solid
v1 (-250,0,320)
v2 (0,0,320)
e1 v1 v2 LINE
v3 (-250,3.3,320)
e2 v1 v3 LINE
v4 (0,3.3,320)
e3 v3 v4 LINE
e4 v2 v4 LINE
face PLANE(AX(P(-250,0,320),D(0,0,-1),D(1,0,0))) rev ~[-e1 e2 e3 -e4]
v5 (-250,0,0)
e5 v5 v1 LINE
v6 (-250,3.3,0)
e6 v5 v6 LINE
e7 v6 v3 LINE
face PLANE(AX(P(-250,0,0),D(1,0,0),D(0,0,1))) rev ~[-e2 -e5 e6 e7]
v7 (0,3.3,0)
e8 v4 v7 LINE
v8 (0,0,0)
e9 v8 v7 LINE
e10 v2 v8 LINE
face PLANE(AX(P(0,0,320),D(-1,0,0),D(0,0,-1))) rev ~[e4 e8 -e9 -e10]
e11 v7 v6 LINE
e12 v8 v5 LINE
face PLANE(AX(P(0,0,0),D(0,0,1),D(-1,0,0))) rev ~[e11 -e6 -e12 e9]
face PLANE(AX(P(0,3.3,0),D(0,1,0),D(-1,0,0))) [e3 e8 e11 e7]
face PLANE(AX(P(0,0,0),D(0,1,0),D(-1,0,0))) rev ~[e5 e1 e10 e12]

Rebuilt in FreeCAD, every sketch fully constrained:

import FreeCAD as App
import Part
import Sketcher
Q = App.Units.Quantity

doc = App.newDocument("Part")
params = doc.addObject("Spreadsheet::Sheet", "Params")
for row, (alias, value) in enumerate([
    ("sketch1_width", "250 mm"),
    ("sketch1_height", "320 mm"),
    ("pad1_length", "3.3 mm"),
], start=1):
    params.set(f"A{row}", alias)
    params.set(f"B{row}", "=" + value)
    params.setAlias(f"B{row}", alias)

body = doc.addObject("PartDesign::Body", "Body")

sketch1 = body.newObject("Sketcher::SketchObject", "Sketch")
sketch1.AttachmentSupport = (doc.getObject("XZ_Plane"), [""])
sketch1.MapMode = "FlatFace"
sketch1.addGeometry([
    Part.LineSegment(App.Vector(0, 320, 0), App.Vector(0, 0, 0)),
    Part.LineSegment(App.Vector(0, 0, 0), App.Vector(-250, 0, 0)),
    Part.LineSegment(App.Vector(-250, 0, 0), App.Vector(-250, 320, 0)),
    Part.LineSegment(App.Vector(-250, 320, 0), App.Vector(0, 320, 0)),
], False)
sketch1.addConstraint([
    Sketcher.Constraint("Coincident", 0, 2, 1, 1),
    Sketcher.Constraint("Coincident", 1, 2, 2, 1),
    Sketcher.Constraint("Coincident", 2, 2, 3, 1),
    Sketcher.Constraint("Coincident", 3, 2, 0, 1),
    Sketcher.Constraint("Vertical", 0),
    Sketcher.Constraint("Horizontal", 1),
    Sketcher.Constraint("Vertical", 2),
    Sketcher.Constraint("Horizontal", 3),
    Sketcher.Constraint("Coincident", 0, 2, -1, 1),
    Sketcher.Constraint("DistanceX", 1, 2, 1, 1, Q("250 mm")),
    Sketcher.Constraint("DistanceY", 0, 2, 0, 1, Q("320 mm")),
])
sketch1.setExpression("Constraints[9]", "Params.sketch1_width")
sketch1.setExpression("Constraints[10]", "Params.sketch1_height")
pad1 = body.newObject("PartDesign::Pad", "Pad")
pad1.Profile = sketch1
pad1.setExpression("Length", "Params.pad1_length")
pad1.Reversed = True

doc.recompute()
